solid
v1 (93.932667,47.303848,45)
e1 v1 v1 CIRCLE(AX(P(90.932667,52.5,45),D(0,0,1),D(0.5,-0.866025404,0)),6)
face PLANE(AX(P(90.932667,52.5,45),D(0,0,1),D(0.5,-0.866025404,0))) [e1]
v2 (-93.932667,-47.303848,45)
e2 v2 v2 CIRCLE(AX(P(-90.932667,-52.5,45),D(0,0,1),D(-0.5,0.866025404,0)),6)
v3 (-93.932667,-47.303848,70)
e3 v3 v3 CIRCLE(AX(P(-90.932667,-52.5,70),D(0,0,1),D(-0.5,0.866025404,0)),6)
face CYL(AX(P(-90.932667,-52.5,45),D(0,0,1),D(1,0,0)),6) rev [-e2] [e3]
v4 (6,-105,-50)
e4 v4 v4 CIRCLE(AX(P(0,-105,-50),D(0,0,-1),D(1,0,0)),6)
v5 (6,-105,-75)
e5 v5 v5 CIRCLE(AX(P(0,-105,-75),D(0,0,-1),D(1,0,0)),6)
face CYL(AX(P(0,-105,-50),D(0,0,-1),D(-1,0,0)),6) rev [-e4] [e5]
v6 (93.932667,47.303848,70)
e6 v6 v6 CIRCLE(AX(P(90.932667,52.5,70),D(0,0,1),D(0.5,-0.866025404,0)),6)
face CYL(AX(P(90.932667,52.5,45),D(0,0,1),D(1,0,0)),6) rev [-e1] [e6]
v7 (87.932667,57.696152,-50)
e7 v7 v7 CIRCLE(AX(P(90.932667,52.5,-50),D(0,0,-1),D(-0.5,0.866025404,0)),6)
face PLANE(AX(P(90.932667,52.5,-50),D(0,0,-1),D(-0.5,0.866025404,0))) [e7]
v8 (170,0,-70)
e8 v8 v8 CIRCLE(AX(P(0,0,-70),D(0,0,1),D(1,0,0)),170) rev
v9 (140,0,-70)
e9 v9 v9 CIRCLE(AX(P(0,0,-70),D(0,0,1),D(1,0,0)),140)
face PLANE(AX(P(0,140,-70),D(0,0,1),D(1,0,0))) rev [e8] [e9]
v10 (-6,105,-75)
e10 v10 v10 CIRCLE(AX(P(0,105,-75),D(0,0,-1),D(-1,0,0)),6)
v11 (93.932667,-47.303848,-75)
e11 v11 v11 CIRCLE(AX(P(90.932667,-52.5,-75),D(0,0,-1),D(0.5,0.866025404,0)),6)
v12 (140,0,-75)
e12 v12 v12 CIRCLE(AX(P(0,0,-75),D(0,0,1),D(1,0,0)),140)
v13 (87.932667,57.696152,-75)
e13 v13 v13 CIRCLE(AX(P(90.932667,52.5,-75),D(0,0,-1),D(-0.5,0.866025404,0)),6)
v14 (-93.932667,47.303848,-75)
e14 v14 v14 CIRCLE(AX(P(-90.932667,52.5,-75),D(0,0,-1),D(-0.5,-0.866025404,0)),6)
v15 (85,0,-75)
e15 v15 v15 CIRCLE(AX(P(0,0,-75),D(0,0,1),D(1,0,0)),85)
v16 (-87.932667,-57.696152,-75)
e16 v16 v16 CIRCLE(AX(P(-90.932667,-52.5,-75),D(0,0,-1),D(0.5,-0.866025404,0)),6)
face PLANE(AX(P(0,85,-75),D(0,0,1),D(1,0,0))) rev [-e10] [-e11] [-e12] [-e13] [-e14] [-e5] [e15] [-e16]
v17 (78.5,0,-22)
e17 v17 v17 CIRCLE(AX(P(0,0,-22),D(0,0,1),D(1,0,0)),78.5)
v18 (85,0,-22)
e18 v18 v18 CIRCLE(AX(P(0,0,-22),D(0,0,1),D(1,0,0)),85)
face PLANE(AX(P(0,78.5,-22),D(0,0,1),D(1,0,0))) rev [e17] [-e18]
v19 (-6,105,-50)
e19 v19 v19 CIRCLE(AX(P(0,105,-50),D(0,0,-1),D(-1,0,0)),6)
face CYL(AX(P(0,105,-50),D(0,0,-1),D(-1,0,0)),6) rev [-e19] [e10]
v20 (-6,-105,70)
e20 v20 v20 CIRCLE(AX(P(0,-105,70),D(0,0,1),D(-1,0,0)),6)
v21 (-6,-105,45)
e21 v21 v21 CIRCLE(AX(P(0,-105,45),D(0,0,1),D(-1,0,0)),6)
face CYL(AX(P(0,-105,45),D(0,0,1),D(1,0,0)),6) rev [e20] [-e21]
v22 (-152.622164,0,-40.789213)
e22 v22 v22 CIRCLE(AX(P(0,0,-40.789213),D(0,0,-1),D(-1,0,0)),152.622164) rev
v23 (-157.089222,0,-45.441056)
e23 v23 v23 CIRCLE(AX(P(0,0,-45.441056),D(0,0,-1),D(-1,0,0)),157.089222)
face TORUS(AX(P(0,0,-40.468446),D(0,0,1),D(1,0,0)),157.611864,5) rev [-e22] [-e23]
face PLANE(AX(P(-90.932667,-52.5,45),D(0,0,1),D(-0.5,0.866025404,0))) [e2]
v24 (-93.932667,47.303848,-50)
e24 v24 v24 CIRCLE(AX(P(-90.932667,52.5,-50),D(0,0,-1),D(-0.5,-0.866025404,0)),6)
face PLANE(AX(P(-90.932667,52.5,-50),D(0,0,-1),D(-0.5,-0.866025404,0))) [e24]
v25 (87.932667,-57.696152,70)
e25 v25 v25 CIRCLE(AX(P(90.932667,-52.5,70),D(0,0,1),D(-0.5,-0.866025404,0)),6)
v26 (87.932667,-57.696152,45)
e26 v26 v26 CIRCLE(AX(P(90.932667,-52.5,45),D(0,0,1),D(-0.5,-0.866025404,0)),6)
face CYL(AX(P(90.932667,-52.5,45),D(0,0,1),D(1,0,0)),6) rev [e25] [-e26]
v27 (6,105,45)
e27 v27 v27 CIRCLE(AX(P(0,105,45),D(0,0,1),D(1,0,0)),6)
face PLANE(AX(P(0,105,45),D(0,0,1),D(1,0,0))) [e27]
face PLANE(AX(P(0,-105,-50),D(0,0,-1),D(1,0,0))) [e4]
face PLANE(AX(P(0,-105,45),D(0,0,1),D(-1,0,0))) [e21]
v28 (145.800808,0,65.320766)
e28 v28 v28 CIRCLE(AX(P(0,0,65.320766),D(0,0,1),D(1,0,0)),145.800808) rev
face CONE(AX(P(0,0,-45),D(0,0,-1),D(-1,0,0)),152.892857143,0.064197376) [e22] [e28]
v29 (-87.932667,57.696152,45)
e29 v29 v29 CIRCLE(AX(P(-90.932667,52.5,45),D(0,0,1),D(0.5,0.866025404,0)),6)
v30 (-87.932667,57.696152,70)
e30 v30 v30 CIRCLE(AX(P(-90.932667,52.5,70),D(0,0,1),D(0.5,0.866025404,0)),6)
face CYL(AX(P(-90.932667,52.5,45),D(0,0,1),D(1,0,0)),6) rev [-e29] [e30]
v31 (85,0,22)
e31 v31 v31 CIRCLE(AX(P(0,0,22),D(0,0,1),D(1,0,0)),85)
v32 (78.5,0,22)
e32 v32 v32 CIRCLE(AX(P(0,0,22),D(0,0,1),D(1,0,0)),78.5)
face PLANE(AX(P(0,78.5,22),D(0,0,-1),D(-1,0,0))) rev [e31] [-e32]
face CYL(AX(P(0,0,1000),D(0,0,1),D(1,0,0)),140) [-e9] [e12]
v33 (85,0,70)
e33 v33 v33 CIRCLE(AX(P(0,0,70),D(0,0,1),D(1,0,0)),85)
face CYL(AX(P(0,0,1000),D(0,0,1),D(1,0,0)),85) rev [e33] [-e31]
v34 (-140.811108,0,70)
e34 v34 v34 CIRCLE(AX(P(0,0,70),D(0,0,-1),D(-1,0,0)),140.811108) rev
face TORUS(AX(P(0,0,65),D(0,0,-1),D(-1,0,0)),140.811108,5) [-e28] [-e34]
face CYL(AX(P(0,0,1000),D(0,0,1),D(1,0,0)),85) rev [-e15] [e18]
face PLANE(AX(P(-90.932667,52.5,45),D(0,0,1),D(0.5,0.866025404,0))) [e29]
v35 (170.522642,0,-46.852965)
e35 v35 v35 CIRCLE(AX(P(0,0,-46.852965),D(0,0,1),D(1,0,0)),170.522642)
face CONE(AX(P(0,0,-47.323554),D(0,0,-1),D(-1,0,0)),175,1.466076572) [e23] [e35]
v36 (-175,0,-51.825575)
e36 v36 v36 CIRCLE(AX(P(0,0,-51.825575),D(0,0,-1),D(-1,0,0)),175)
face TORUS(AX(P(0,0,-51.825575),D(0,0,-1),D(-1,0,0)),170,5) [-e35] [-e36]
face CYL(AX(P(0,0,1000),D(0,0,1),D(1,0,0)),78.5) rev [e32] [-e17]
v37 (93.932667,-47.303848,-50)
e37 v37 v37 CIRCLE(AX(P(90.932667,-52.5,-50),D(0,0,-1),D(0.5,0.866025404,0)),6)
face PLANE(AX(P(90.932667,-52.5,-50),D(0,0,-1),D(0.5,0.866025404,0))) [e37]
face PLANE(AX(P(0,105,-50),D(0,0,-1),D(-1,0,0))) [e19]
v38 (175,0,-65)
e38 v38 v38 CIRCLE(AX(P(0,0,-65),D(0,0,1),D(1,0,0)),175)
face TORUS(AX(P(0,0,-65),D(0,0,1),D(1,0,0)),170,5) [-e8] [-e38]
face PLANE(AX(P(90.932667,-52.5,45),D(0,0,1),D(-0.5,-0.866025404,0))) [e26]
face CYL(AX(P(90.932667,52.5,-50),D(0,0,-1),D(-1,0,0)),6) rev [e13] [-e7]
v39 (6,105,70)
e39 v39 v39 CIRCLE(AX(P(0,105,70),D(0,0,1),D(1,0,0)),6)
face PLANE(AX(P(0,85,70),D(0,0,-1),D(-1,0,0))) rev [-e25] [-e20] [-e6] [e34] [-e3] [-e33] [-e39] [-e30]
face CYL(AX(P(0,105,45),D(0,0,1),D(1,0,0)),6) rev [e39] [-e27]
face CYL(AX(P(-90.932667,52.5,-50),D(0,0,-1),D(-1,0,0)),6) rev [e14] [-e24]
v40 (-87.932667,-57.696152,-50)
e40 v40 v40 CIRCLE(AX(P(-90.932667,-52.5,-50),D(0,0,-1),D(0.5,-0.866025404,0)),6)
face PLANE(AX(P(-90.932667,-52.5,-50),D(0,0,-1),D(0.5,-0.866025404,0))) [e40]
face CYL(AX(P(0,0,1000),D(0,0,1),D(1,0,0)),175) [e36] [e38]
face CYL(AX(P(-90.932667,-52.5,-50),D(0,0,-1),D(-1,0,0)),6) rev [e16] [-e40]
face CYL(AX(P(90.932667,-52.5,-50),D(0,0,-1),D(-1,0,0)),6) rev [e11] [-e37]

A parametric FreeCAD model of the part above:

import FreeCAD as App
import Part
import Sketcher
from FreeCAD import Vector
Q = App.Units.Quantity


def edges_at(feature, points):
    """Names of the edges that pass closest to the given points."""
    edges = feature.Shape.Edges
    near = lambda p: min(range(len(edges)), key=lambda i: edges[i].distToShape(Part.Vertex(*p))[0])
    return sorted({f"Edge{near(p) + 1}" for p in points})


def add_polygon(sketch, points):
    """Adds a closed chain of lines whose ends are joined by coincident constraints."""
    first, n = sketch.GeometryCount, len(points)
    for a, b in zip(points, points[1:] + points[:1]):
        sketch.addGeometry(Part.LineSegment(App.Vector(*a, 0), App.Vector(*b, 0)), False)
    for i in range(n):
        sketch.addConstraint(Sketcher.Constraint("Coincident", first + i, 2, first + (i + 1) % n, 1))

doc = App.newDocument("Part")
body = doc.addObject("PartDesign::Body", "Body")

sketch1 = body.newObject("Sketcher::SketchObject", "Sketch")
sketch1.AttachmentSupport = (doc.getObject("YZ_Plane"), [""])
sketch1.MapMode = "FlatFace"
add_polygon(sketch1, [(78, 22), (78, -22), (85, -22), (85, -75), (140, -75), (140, -70), (175, -70), (175, -47), (153, -45), (146, 70), (85, 70), (85, 22)])
sketch1.addConstraint([
    Sketcher.Constraint("Vertical", 0),
    Sketcher.Constraint("Horizontal", 1),
    Sketcher.Constraint("Vertical", 2),
    Sketcher.Constraint("Horizontal", 3),
    Sketcher.Constraint("Vertical", 4),
    Sketcher.Constraint("Horizontal", 5),
    Sketcher.Constraint("Vertical", 6),
    Sketcher.Constraint("Horizontal", 9),
    Sketcher.Constraint("Vertical", 10),
    Sketcher.Constraint("Horizontal", 11),
    Sketcher.Constraint("Symmetric", 1, 2, 10, 2, -1),
    Sketcher.Constraint("DistanceX", 3, 1, 3, 2, 55.0),
    Sketcher.Constraint("DistanceX", 5, 1, 5, 2, 35.0),
    Sketcher.Constraint("DistanceY", 0, 2, 0, 1, 44.0),
    Sketcher.Constraint("DistanceY", 2, 2, 2, 1, 53.0),
    Sketcher.Constraint("DistanceY", 4, 1, 4, 2, 5.0),
    Sketcher.Constraint("DistanceY", 10, 2, 10, 1, 48.0),
    Sketcher.Constraint("Angle", 7, Q("174 deg")),
    Sketcher.Constraint("DistanceX", 1, 1, 1, 2, 6.5),
    Sketcher.Constraint("DistanceX", 9, 2, 9, 1, 60.5),
    Sketcher.Constraint("DistanceX", -1, 1, 1, 2, 85.0),
    Sketcher.Constraint("DistanceY", 7, 2, -1, 1, 45.0),
    Sketcher.Constraint("DistanceY", 6, 1, 6, 2, 22.676446),
])
revolution = body.newObject("PartDesign::Revolution", "Revolution")
revolution.Profile = sketch1
revolution.ReferenceAxis = (sketch1, ["V_Axis"])
revolution.Angle = 360
doc.recompute()

fillet = body.newObject("PartDesign::Fillet", "Fillet")
fillet.Base = (revolution, edges_at(revolution, [
    (-175, 0, -47.324),
    (-175, 0, -70),
    (-145.5, 0, 70),
    (-152.893, 0, -45),
]))
fillet.Radius = 5

sketch2 = body.newObject("Sketcher::SketchObject", "Sketch001")
sketch2.AttachmentSupport = (doc.getObject("XY_Plane"), [""])
sketch2.MapMode = "FlatFace"
sketch2.AttachmentOffset = App.Placement(Vector(0, 0, -75), App.Rotation())
sketch2.addGeometry(Part.Circle(Vector(0, 105, 0), Vector(0, 0, 1), 6), False)
sketch2.addConstraint([
    Sketcher.Constraint("PointOnObject", 0, 3, -2),
    Sketcher.Constraint("Diameter", 0, 12.0),
    Sketcher.Constraint("DistanceY", -1, 1, 0, 3, 105.0),
])
pocket1 = body.newObject("PartDesign::Pocket", "Pocket")
pocket1.Profile = sketch2
pocket1.Length = 25
pocket1.Reversed = True
doc.recompute()

polarpattern = body.newObject("PartDesign::PolarPattern", "PolarPattern")
polarpattern.Originals = [pocket1]
polarpattern.Axis = (doc.getObject("Z_Axis"), [""])
polarpattern.Angle = 360
polarpattern.Occurrences = 6
body.Tip = polarpattern

sketch3 = body.newObject("Sketcher::SketchObject", "Sketch002")
sketch3.AttachmentSupport = (doc.getObject("XY_Plane"), [""])
sketch3.MapMode = "FlatFace"
sketch3.AttachmentOffset = App.Placement(Vector(0, 0, 45), App.Rotation())
sketch3.addGeometry(Part.Circle(Vector(0, 105, 0), Vector(0, 0, 1), 6), False)
sketch3.addConstraint([
    Sketcher.Constraint("PointOnObject", 0, 3, -2),
    Sketcher.Constraint("Diameter", 0, 12.0),
    Sketcher.Constraint("DistanceY", -1, 1, 0, 3, 105.0),
])
pocket2 = body.newObject("PartDesign::Pocket", "Pocket001")
pocket2.Profile = sketch3
pocket2.Length = 25
pocket2.Reversed = True
doc.recompute()

polarpattern2 = body.newObject("PartDesign::PolarPattern", "PolarPattern001")
polarpattern2.Originals = [pocket2]
polarpattern2.Axis = (doc.getObject("Z_Axis"), [""])
polarpattern2.Angle = 360
polarpattern2.Occurrences = 6
body.Tip = polarpattern2

doc.recompute()
